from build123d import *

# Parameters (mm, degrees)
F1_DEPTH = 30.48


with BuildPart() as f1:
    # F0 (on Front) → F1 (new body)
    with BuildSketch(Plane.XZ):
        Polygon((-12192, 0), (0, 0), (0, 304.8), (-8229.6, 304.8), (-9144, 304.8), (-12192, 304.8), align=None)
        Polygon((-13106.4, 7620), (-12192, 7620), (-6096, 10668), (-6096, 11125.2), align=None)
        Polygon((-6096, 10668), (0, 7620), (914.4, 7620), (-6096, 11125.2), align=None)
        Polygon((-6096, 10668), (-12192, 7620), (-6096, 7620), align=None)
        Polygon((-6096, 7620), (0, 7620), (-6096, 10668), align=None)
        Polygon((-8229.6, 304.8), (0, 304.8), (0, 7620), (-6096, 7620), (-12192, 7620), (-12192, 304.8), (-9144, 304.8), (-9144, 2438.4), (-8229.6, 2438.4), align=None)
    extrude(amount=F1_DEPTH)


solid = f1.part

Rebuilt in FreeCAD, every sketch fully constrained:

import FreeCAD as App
import Part
import Sketcher

V = App.Vector
Q = App.Units.Quantity

doc = App.newDocument("Part")
body = doc.addObject("PartDesign::Body", "Body")

sketch1 = doc.addObject("Sketcher::SketchObject", "Sketch")
body.addObject(sketch1)
sketch1.AttachmentSupport = (doc.XZ_Plane, [""])
sketch1.MapMode = "FlatFace"
sketch1.addGeometry([
    Part.LineSegment(V(-12192, 0, 0), V(0, 0, 0)),
    Part.LineSegment(V(0, 0, 0), V(0, 7620, 0)),
    Part.LineSegment(V(0, 7620, 0), V(914, 7620, 0)),
    Part.LineSegment(V(914, 7620, 0), V(-6096, 11125, 0)),
    Part.LineSegment(V(-6096, 11125, 0), V(-13106, 7620, 0)),
    Part.LineSegment(V(-13106, 7620, 0), V(-12192, 7620, 0)),
    Part.LineSegment(V(-12192, 7620, 0), V(-12192, 0, 0)),
    Part.LineSegment(V(-8230, 305, 0), V(-9144, 305, 0)),
    Part.LineSegment(V(-9144, 305, 0), V(-9144, 2438, 0)),
    Part.LineSegment(V(-9144, 2438, 0), V(-8230, 2438, 0)),
    Part.LineSegment(V(-8230, 2438, 0), V(-8230, 305, 0)),
], False)
sketch1.addConstraint([
    Sketcher.Constraint("Coincident", 0, 2, 1, 1),
    Sketcher.Constraint("Coincident", 1, 2, 2, 1),
    Sketcher.Constraint("Coincident", 2, 2, 3, 1),
    Sketcher.Constraint("Coincident", 3, 2, 4, 1),
    Sketcher.Constraint("Coincident", 4, 2, 5, 1),
    Sketcher.Constraint("Coincident", 5, 2, 6, 1),
    Sketcher.Constraint("Coincident", 6, 2, 0, 1),
    Sketcher.Constraint("Coincident", 7, 2, 8, 1),
    Sketcher.Constraint("Coincident", 8, 2, 9, 1),
    Sketcher.Constraint("Coincident", 9, 2, 10, 1),
    Sketcher.Constraint("Coincident", 10, 2, 7, 1),
    Sketcher.Constraint("Horizontal", 0),
    Sketcher.Constraint("Vertical", 1),
    Sketcher.Constraint("Horizontal", 2),
    Sketcher.Constraint("Horizontal", 5),
    Sketcher.Constraint("Vertical", 6),
    Sketcher.Constraint("Horizontal", 7),
    Sketcher.Constraint("Vertical", 8),
    Sketcher.Constraint("Horizontal", 9),
    Sketcher.Constraint("Vertical", 10),
    Sketcher.Constraint("Coincident", 0, 2, -1, 1),
    Sketcher.Constraint("Horizontal", 2, 2, 4, 2),
    Sketcher.Constraint("Equal", 2, 5),
    Sketcher.Constraint("Equal", 5, 7),
    Sketcher.Constraint("Equal", 3, 4),
    Sketcher.Constraint("DistanceX", 0, 1, 0, 2, Q("480 in")),
    Sketcher.Constraint("DistanceX", 2, 1, 2, 2, Q("36 in")),
    Sketcher.Constraint("DistanceY", 1, 1, 1, 2, Q("300 in")),
    Sketcher.Constraint("DistanceY", 8, 1, 8, 2, Q("84 in")),
    Sketcher.Constraint("DistanceY", -1, 1, 3, 2, Q("438 in")),
    Sketcher.Constraint("DistanceX", 7, 2, -1, 1, Q("360 in")),
    Sketcher.Constraint("DistanceY", -1, 1, 7, 2, Q("12 in")),
])
pad1 = doc.addObject("PartDesign::Pad", "Pad")
body.addObject(pad1)
pad1.Profile = sketch1
pad1.Length = Q("1.2 in")

doc.recompute()
